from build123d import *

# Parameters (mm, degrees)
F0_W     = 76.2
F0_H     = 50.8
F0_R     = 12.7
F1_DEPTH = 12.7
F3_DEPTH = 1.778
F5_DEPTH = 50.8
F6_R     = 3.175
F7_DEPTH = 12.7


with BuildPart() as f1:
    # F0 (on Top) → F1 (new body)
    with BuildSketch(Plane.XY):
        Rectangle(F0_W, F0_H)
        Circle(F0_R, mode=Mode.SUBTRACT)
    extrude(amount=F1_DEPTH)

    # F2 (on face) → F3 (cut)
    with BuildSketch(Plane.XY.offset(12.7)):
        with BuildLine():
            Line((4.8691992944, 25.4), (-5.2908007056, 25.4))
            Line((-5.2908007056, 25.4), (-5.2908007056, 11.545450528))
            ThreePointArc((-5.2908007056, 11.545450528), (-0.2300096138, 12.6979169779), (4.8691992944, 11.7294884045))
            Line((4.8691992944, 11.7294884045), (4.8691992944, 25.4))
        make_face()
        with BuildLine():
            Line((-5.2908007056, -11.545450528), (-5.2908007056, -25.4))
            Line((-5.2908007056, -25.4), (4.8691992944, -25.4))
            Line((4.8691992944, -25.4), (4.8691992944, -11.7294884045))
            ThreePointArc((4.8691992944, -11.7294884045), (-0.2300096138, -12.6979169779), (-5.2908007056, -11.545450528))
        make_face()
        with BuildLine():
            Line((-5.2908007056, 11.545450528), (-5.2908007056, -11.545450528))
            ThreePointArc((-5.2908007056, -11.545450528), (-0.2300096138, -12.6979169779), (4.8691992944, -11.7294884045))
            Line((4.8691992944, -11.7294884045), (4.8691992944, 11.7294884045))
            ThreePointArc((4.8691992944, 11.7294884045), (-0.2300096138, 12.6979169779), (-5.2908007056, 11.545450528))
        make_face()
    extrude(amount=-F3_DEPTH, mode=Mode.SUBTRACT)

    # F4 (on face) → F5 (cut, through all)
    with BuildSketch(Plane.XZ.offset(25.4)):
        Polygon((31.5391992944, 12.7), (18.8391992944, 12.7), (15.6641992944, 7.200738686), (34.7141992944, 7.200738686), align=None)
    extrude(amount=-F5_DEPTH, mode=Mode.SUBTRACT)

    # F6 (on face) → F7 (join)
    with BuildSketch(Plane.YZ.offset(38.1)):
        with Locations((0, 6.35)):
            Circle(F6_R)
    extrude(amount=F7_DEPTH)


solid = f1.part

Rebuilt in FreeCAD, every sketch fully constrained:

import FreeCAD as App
import Part
import Sketcher
Q = App.Units.Quantity

doc = App.newDocument("Part")
body = doc.addObject("PartDesign::Body", "Body")

# Sketch on XY plane
sketch1 = body.newObject("Sketcher::SketchObject", "Sketch")
sketch1.AttachmentSupport = (doc.getObject("XY_Plane"), [""])
sketch1.MapMode = "FlatFace"
sketch1.addGeometry([
    Part.LineSegment(App.Vector(-38, 25, 0), App.Vector(-38, -25, 0)),  # 0
    Part.LineSegment(App.Vector(-38, -25, 0), App.Vector(38, -25, 0)),  # 1
    Part.LineSegment(App.Vector(38, -25, 0), App.Vector(38, 25, 0)),  # 2
    Part.LineSegment(App.Vector(38, 25, 0), App.Vector(-38, 25, 0)),  # 3
    Part.Circle(App.Vector(0, 0, 0), App.Vector(0, 0, 1), 13),  # 4
], False)
sketch1.addConstraint([
    Sketcher.Constraint("Coincident", 0, 2, 1, 1),
    Sketcher.Constraint("Coincident", 1, 2, 2, 1),
    Sketcher.Constraint("Coincident", 2, 2, 3, 1),
    Sketcher.Constraint("Coincident", 3, 2, 0, 1),
    Sketcher.Constraint("Vertical", 0),
    Sketcher.Constraint("Horizontal", 1),
    Sketcher.Constraint("Vertical", 2),
    Sketcher.Constraint("Horizontal", 3),
    Sketcher.Constraint("Coincident", 4, 3, -1, 1),
    Sketcher.Constraint("Symmetric", 0, 2, 2, 2, -1, 1),
    Sketcher.Constraint("Diameter", 4, Q("1 in")),
    Sketcher.Constraint("DistanceX", 1, 1, 1, 2, Q("3 in")),
    Sketcher.Constraint("DistanceY", 0, 2, 0, 1, Q("2 in")),
])
pad1 = body.newObject("PartDesign::Pad", "Pad")
pad1.Profile = sketch1
pad1.Length = Q("0.5 in")

# Sketch on XY plane
sketch2 = body.newObject("Sketcher::SketchObject", "Sketch001")
sketch2.AttachmentSupport = (doc.getObject("XY_Plane"), [""])
sketch2.MapMode = "FlatFace"
sketch2.AttachmentOffset = App.Placement(App.Vector(0, 0, 0.5 * 25.4), App.Rotation())
sketch2.addGeometry([
    Part.LineSegment(App.Vector(5, 25, 0), App.Vector(-5, 25, 0)),
    Part.LineSegment(App.Vector(-5, 25, 0), App.Vector(-5, -25, 0)),
    Part.LineSegment(App.Vector(-5, -25, 0), App.Vector(5, -25, 0)),
    Part.LineSegment(App.Vector(5, -25, 0), App.Vector(5, 25, 0)),
], False)
sketch2.addConstraint([
    Sketcher.Constraint("Coincident", 0, 2, 1, 1),
    Sketcher.Constraint("Coincident", 1, 2, 2, 1),
    Sketcher.Constraint("Coincident", 2, 2, 3, 1),
    Sketcher.Constraint("Coincident", 3, 2, 0, 1),
    Sketcher.Constraint("Horizontal", 0),
    Sketcher.Constraint("Vertical", 1),
    Sketcher.Constraint("Horizontal", 2),
    Sketcher.Constraint("Vertical", 3),
    Sketcher.Constraint("DistanceY", 1, 2, 1, 1, Q("2 in")),
    Sketcher.Constraint("DistanceX", 0, 2, 0, 1, Q("0.4 in")),
    Sketcher.Constraint("DistanceY", -1, 1, 0, 2, Q("1 in")),
    Sketcher.Constraint("DistanceX", 0, 2, -1, 1, 5.290801),
])
pocket1 = body.newObject("PartDesign::Pocket", "Pocket")
pocket1.Profile = sketch2
pocket1.Length = Q("0.07 in")

# Sketch on XZ plane
sketch3 = body.newObject("Sketcher::SketchObject", "Sketch002")
sketch3.AttachmentSupport = (doc.getObject("XZ_Plane"), [""])
sketch3.MapMode = "FlatFace"
sketch3.AttachmentOffset = App.Placement(App.Vector(0, 0, 1 * 25.4), App.Rotation())
sketch3.addGeometry([
    Part.LineSegment(App.Vector(32, 13, 0), App.Vector(19, 13, 0)),
    Part.LineSegment(App.Vector(19, 13, 0), App.Vector(16, 7, 0)),
    Part.LineSegment(App.Vector(16, 7, 0), App.Vector(35, 7, 0)),
    Part.LineSegment(App.Vector(35, 7, 0), App.Vector(32, 13, 0)),
], False)
sketch3.addConstraint([
    Sketcher.Constraint("Coincident", 0, 2, 1, 1),
    Sketcher.Constraint("Coincident", 1, 2, 2, 1),
    Sketcher.Constraint("Coincident", 2, 2, 3, 1),
    Sketcher.Constraint("Coincident", 3, 2, 0, 1),
    Sketcher.Constraint("Horizontal", 0),
    Sketcher.Constraint("Horizontal", 2),
    Sketcher.Constraint("Equal", 1, 3),
    Sketcher.Constraint("DistanceX", 0, 2, 0, 1, Q("0.5 in")),
    Sketcher.Constraint("Angle", 1, Q("-120 deg")),
    Sketcher.Constraint("DistanceX", 2, 1, 2, 2, Q("0.75 in")),
    Sketcher.Constraint("DistanceY", -1, 1, 0, 2, Q("0.5 in")),
    Sketcher.Constraint("DistanceX", -1, 1, 0, 2, 18.839199),
])
pocket2 = body.newObject("PartDesign::Pocket", "Pocket001")
pocket2.Profile = sketch3
pocket2.Type = "ThroughAll"

# Sketch on YZ plane
sketch4 = body.newObject("Sketcher::SketchObject", "Sketch003")
sketch4.AttachmentSupport = (doc.getObject("YZ_Plane"), [""])
sketch4.MapMode = "FlatFace"
sketch4.AttachmentOffset = App.Placement(App.Vector(0, 0, 1.5 * 25.4), App.Rotation())
sketch4.addGeometry(Part.Circle(App.Vector(0, 6.3, 0), App.Vector(0, 0, 1), 3.2), False)
sketch4.addConstraint([
    Sketcher.Constraint("PointOnObject", 0, 3, -2),
    Sketcher.Constraint("Diameter", 0, Q("0.25 in")),
    Sketcher.Constraint("DistanceY", -1, 1, 0, 3, Q("0.25 in")),
])
pad2 = body.newObject("PartDesign::Pad", "Pad001")
pad2.Profile = sketch4
pad2.Length = Q("0.5 in")

doc.recompute()
